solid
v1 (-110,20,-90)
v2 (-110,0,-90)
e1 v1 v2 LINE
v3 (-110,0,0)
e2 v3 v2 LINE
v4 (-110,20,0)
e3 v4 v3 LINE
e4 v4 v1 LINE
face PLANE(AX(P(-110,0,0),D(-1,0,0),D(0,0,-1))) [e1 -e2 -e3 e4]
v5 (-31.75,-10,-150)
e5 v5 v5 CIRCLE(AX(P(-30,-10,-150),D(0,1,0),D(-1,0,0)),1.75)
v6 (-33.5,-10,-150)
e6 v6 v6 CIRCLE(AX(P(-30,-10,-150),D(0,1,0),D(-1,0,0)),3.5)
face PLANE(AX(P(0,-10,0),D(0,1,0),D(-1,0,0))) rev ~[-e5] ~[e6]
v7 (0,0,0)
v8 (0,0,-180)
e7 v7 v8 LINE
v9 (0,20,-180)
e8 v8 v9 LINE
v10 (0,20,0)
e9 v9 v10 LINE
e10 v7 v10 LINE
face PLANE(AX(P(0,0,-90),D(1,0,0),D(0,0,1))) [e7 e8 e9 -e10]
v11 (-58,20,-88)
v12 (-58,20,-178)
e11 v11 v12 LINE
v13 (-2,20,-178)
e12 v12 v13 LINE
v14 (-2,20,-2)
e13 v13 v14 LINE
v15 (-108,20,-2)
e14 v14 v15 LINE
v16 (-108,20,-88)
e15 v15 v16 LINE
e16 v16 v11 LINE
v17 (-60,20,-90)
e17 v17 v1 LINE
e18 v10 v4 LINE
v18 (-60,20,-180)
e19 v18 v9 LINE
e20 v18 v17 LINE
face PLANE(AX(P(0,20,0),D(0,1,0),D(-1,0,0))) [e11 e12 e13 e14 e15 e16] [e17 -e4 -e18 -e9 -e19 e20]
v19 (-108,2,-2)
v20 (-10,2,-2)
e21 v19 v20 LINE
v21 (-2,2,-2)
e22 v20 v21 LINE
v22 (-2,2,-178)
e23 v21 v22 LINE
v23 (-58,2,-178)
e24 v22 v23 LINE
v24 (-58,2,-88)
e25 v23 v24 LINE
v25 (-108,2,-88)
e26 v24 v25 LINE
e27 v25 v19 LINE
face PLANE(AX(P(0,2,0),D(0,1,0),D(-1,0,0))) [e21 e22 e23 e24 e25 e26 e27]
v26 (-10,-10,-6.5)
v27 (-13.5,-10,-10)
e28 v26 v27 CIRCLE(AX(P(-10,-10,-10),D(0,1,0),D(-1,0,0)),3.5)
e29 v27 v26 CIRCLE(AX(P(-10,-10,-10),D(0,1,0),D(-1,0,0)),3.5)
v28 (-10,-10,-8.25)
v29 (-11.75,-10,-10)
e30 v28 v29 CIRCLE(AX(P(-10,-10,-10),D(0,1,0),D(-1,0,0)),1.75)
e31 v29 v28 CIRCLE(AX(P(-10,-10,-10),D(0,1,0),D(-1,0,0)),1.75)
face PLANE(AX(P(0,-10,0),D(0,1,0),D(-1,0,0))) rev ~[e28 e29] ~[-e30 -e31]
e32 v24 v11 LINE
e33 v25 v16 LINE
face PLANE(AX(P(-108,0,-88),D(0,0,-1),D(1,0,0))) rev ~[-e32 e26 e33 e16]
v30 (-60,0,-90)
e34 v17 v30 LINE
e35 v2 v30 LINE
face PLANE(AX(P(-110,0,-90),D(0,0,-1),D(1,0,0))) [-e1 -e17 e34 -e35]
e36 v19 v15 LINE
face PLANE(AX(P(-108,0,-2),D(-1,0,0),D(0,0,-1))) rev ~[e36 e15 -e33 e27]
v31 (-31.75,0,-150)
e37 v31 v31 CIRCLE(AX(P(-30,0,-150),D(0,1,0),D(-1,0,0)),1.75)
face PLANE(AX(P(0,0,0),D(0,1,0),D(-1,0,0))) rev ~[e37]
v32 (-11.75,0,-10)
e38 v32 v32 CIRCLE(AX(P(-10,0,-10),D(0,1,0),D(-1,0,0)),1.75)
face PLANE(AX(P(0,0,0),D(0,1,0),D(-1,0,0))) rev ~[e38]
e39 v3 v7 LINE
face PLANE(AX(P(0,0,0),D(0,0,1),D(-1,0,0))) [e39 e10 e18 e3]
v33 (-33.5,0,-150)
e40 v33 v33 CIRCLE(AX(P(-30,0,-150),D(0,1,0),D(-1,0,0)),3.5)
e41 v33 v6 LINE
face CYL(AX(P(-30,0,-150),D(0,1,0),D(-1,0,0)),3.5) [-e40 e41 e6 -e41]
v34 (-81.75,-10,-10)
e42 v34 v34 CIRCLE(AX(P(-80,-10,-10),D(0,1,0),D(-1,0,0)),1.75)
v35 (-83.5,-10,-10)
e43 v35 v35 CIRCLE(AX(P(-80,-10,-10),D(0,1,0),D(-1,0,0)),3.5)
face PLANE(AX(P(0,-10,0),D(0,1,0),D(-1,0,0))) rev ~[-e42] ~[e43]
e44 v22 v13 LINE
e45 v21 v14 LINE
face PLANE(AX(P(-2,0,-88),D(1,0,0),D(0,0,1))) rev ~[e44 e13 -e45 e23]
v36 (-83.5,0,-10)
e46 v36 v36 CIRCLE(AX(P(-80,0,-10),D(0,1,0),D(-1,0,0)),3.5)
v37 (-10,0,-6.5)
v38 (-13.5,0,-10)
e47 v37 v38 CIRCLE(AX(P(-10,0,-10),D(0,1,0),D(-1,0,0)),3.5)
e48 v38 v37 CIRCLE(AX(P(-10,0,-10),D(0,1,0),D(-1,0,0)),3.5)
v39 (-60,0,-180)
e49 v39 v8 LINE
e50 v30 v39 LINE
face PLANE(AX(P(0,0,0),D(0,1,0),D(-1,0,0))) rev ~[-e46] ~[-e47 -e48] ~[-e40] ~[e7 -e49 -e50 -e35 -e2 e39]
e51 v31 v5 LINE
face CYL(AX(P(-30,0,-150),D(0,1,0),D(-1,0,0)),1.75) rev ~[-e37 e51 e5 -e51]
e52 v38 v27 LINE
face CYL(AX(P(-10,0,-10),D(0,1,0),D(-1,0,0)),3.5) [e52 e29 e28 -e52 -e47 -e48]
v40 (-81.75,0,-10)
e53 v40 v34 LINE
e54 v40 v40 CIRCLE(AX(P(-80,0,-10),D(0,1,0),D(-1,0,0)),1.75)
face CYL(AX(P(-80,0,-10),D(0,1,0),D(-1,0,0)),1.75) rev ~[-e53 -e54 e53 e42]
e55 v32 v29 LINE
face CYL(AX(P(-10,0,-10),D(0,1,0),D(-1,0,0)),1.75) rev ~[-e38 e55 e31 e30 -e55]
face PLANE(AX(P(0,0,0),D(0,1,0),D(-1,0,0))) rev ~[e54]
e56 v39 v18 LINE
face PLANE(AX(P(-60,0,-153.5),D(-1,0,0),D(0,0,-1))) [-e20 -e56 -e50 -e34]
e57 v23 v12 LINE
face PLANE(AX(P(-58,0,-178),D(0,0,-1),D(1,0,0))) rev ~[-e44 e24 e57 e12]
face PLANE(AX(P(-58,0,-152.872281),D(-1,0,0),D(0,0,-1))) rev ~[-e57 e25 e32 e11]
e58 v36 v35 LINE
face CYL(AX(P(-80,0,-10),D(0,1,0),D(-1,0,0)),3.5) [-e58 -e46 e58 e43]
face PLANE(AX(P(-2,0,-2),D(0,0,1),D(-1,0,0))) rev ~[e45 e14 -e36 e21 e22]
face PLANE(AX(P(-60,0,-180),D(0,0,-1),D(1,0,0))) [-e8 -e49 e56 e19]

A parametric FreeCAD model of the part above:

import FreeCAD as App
import Part
import Sketcher
from FreeCAD import Vector


def add_polygon(sketch, points):
    """Adds a closed chain of lines whose ends are joined by coincident constraints."""
    first, n = sketch.GeometryCount, len(points)
    for a, b in zip(points, points[1:] + points[:1]):
        sketch.addGeometry(Part.LineSegment(App.Vector(*a, 0), App.Vector(*b, 0)), False)
    for i in range(n):
        sketch.addConstraint(Sketcher.Constraint("Coincident", first + i, 2, first + (i + 1) % n, 1))

doc = App.newDocument("Part")
body = doc.addObject("PartDesign::Body", "Body")

# Sketch on XZ plane
sketch1 = body.newObject("Sketcher::SketchObject", "Sketch")
sketch1.AttachmentSupport = (doc.getObject("XZ_Plane"), [""])
sketch1.MapMode = "FlatFace"
add_polygon(sketch1, [(0, 0), (0, -180), (-60, -180), (-60, -90), (-110, -90), (-110, 0)])  # lines 0-5
sketch1.addConstraint([
    Sketcher.Constraint("Vertical", 0),
    Sketcher.Constraint("Horizontal", 1),
    Sketcher.Constraint("Vertical", 2),
    Sketcher.Constraint("Horizontal", 3),
    Sketcher.Constraint("Vertical", 4),
    Sketcher.Constraint("Horizontal", 5),
    Sketcher.Constraint("Coincident", 5, 2, -1, 1),
    Sketcher.Constraint("Equal", 2, 4),
    Sketcher.Constraint("DistanceX", 1, 2, 1, 1, 60.0),
    Sketcher.Constraint("DistanceX", 5, 1, 5, 2, 110.0),
    Sketcher.Constraint("DistanceY", 2, 1, 2, 2, 90.0),
])
pad1 = body.newObject("PartDesign::Pad", "Pad")
pad1.Profile = sketch1
pad1.Length = 2
pad1.Reversed = True

# Sketch on XZ plane
sketch2 = body.newObject("Sketcher::SketchObject", "Sketch001")
sketch2.AttachmentSupport = (doc.getObject("XZ_Plane"), [""])
sketch2.MapMode = "FlatFace"
add_polygon(sketch2, [(0, 0), (0, -180), (-60, -180), (-60, -90), (-110, -90), (-110, 0)])  # lines 0-5
add_polygon(sketch2, [(-2, -2), (-108, -2), (-108, -88), (-58, -88), (-58, -178), (-2, -178)])  # lines 6-11
sketch2.addConstraint([
    Sketcher.Constraint("Vertical", 0),
    Sketcher.Constraint("Horizontal", 1),
    Sketcher.Constraint("Vertical", 2),
    Sketcher.Constraint("Horizontal", 3),
    Sketcher.Constraint("Vertical", 4),
    Sketcher.Constraint("Horizontal", 5),
    Sketcher.Constraint("Horizontal", 6),
    Sketcher.Constraint("Vertical", 7),
    Sketcher.Constraint("Horizontal", 8),
    Sketcher.Constraint("Vertical", 9),
    Sketcher.Constraint("Horizontal", 10),
    Sketcher.Constraint("Vertical", 11),
    Sketcher.Constraint("Coincident", 5, 2, -1, 1),
    Sketcher.Constraint("Equal", 3, 8),
    Sketcher.Constraint("Equal", 2, 4),
    Sketcher.Constraint("Equal", 4, 9),
    Sketcher.Constraint("DistanceX", 1, 2, 1, 1, 60.0),
    Sketcher.Constraint("DistanceX", 5, 1, 5, 2, 110.0),
    Sketcher.Constraint("DistanceX", 6, 2, 6, 1, 106.0),
    Sketcher.Constraint("DistanceY", 2, 1, 2, 2, 90.0),
    Sketcher.Constraint("DistanceY", 7, 2, 7, 1, 86.0),
    Sketcher.Constraint("DistanceY", 6, 2, -1, 1, 2.0),
    Sketcher.Constraint("DistanceX", 10, 2, -1, 1, 2.0),
])
pad2 = body.newObject("PartDesign::Pad", "Pad001")
pad2.Profile = sketch2
pad2.Length = 20
pad2.Reversed = True

# Sketch on XZ plane
sketch3 = body.newObject("Sketcher::SketchObject", "Sketch002")
sketch3.AttachmentSupport = (doc.getObject("XZ_Plane"), [""])
sketch3.MapMode = "FlatFace"
sketch3.addGeometry([
    Part.Circle(Vector(-10, -10, 0), Vector(0, 0, 1), 3.5),  # 0
    Part.Circle(Vector(-10, -10, 0), Vector(0, 0, 1), 1.8),  # 1
    Part.Circle(Vector(-80, -10, 0), Vector(0, 0, 1), 3.5),  # 2
    Part.Circle(Vector(-80, -10, 0), Vector(0, 0, 1), 1.8),  # 3
    Part.Circle(Vector(-30, -150, 0), Vector(0, 0, 1), 3.5),  # 4
    Part.Circle(Vector(-30, -150, 0), Vector(0, 0, 1), 1.8),  # 5
], False)
sketch3.addConstraint([
    Sketcher.Constraint("Coincident", 1, 3, 0, 3),
    Sketcher.Constraint("Coincident", 3, 3, 2, 3),
    Sketcher.Constraint("Coincident", 5, 3, 4, 3),
    Sketcher.Constraint("Equal", 0, 2),
    Sketcher.Constraint("Equal", 1, 3),
    Sketcher.Constraint("Equal", 2, 4),
    Sketcher.Constraint("Equal", 3, 5),
    Sketcher.Constraint("Horizontal", 1, 3, 2, 3),
    Sketcher.Constraint("Diameter", 0, 7.0),
    Sketcher.Constraint("Diameter", 1, 3.5),
    Sketcher.Constraint("DistanceX", 0, 3, -1, 1, 10.0),
    Sketcher.Constraint("DistanceY", 0, 3, -1, 1, 10.0),
    Sketcher.Constraint("DistanceX", 2, 3, -1, 1, 80.0),
    Sketcher.Constraint("DistanceX", 4, 3, -1, 1, 30.0),
    Sketcher.Constraint("DistanceY", 4, 3, -1, 1, 150.0),
])
pad3 = body.newObject("PartDesign::Pad", "Pad002")
pad3.Profile = sketch3
pad3.Length = 10

doc.recompute()
